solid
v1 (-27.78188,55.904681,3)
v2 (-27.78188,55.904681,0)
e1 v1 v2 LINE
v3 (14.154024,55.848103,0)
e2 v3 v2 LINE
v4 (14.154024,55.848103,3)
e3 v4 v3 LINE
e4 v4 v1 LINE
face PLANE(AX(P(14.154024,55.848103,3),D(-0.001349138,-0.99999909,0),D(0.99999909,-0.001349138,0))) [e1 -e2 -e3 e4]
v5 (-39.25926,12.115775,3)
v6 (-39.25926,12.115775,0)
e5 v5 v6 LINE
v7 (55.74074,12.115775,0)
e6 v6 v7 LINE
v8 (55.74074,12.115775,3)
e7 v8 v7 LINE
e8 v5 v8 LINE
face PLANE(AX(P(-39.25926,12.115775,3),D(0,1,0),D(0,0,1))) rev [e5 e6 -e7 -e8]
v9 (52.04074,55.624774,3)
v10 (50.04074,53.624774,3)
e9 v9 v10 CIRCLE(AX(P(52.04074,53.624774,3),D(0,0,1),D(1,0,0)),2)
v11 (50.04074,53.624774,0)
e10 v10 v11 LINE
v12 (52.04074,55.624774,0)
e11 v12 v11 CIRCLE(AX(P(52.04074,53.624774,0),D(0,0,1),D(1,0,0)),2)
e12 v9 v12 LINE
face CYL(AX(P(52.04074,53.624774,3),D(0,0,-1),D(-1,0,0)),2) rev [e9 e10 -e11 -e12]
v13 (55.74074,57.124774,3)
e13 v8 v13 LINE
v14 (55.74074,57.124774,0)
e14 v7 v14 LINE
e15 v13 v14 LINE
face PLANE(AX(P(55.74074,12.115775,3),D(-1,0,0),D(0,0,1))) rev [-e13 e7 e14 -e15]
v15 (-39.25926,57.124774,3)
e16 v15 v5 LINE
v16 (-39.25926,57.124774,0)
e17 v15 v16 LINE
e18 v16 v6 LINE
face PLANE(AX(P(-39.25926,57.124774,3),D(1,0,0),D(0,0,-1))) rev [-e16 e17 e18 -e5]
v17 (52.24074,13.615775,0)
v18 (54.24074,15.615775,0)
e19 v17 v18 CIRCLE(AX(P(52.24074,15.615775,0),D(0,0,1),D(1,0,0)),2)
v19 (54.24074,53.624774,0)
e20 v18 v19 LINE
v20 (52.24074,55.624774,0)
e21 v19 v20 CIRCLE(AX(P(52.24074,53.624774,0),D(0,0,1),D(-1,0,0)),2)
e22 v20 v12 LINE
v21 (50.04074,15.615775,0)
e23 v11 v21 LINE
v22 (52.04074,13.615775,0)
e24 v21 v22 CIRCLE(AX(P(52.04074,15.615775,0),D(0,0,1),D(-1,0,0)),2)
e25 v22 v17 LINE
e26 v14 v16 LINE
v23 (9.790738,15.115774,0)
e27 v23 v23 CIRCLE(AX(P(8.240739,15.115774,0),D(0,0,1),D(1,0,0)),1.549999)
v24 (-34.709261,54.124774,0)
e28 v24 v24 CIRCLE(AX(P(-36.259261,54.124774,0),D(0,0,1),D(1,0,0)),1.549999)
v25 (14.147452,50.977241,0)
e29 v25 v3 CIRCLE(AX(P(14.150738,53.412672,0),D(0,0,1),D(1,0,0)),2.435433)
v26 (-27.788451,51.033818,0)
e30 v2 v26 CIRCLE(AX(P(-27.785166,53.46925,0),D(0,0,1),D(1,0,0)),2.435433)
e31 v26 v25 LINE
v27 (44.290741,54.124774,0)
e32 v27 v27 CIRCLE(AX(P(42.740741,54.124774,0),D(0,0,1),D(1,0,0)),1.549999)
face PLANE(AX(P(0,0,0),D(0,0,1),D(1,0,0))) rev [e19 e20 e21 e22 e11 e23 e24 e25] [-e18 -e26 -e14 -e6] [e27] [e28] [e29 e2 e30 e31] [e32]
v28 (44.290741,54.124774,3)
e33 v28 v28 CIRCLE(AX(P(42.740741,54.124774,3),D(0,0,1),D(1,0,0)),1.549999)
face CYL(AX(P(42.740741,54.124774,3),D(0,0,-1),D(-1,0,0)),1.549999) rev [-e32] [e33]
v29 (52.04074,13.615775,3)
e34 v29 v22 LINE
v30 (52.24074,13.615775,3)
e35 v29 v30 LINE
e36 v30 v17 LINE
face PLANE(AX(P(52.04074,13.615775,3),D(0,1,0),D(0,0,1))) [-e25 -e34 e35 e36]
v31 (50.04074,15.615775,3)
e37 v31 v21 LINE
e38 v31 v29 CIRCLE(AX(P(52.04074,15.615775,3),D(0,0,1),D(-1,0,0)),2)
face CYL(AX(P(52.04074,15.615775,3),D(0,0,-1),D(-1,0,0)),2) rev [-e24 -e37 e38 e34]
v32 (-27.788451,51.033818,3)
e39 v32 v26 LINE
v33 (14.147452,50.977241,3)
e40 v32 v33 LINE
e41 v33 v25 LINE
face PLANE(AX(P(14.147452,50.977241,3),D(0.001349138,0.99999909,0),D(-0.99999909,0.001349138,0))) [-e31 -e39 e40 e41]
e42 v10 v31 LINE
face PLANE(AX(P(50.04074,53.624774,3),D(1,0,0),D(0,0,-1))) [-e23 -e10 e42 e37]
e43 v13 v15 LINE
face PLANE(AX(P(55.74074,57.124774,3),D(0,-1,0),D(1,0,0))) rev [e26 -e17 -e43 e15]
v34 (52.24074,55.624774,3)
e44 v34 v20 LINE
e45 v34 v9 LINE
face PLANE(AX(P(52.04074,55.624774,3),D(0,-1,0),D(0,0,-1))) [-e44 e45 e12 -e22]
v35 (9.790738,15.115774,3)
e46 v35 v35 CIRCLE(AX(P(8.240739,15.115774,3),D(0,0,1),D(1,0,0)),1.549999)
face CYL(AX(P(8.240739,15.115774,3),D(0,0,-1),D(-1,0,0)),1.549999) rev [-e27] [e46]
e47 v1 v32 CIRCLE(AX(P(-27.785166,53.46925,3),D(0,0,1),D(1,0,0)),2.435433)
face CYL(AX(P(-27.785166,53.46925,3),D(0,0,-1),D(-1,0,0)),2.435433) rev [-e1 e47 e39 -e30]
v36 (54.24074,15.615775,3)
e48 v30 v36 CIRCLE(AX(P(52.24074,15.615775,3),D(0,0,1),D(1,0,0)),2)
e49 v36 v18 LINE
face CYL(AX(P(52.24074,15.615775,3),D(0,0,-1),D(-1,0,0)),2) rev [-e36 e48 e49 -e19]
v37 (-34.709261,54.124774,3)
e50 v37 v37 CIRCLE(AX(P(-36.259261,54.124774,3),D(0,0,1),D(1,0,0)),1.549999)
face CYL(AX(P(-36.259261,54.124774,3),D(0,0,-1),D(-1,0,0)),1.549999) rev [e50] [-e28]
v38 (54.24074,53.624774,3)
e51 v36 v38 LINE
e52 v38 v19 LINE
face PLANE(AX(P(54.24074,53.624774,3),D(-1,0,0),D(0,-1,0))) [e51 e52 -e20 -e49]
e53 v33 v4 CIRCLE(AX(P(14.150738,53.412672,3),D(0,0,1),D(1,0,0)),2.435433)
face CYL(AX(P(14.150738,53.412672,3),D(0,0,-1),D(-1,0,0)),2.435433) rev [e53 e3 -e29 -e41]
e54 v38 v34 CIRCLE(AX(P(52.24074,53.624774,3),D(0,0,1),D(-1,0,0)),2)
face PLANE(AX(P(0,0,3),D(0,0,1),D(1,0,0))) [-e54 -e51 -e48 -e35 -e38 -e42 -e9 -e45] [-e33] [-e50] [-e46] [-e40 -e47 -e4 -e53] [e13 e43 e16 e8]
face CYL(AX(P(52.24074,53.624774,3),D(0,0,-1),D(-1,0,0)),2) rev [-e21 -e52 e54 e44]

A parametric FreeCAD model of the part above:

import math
import FreeCAD as App
import Part
import Sketcher
from FreeCAD import Vector
Q = App.Units.Quantity


def add_polygon(sketch, points):
    """Adds a closed chain of lines whose ends are joined by coincident constraints."""
    first, n = sketch.GeometryCount, len(points)
    for a, b in zip(points, points[1:] + points[:1]):
        sketch.addGeometry(Part.LineSegment(App.Vector(*a, 0), App.Vector(*b, 0)), False)
    for i in range(n):
        sketch.addConstraint(Sketcher.Constraint("Coincident", first + i, 2, first + (i + 1) % n, 1))

doc = App.newDocument("Part")
body = doc.addObject("PartDesign::Body", "Body")

sketch1 = body.newObject("Sketcher::SketchObject", "Sketch")
sketch1.AttachmentSupport = (doc.getObject("XY_Plane"), [""])
sketch1.MapMode = "FlatFace"
add_polygon(sketch1, [(-39.26, 57.12), (-39.26, 12.12), (55.74, 12.12), (55.74, 57.12)])
sketch1.addGeometry(Part.Circle(Vector(8.24, 15.12, 0), Vector(0, 0, 1), 1.55), False)
sketch1.addGeometry(Part.ArcOfCircle(Part.Circle(Vector(52.04, 53.62, 0), Vector(0, 0, 1), 2), math.radians(90), math.radians(180)), False)
sketch1.addGeometry(Part.LineSegment(Vector(52.04, 55.62, 0), Vector(52.24, 55.62, 0)), False)
sketch1.addGeometry(Part.ArcOfCircle(Part.Circle(Vector(52.24, 53.62, 0), Vector(0, 0, 1), 2), math.radians(0), math.radians(90)), False)
sketch1.addGeometry(Part.LineSegment(Vector(54.24, 53.62, 0), Vector(54.24, 15.62, 0)), False)
sketch1.addGeometry(Part.ArcOfCircle(Part.Circle(Vector(52.24, 15.62, 0), Vector(0, 0, 1), 2), math.radians(-90), math.radians(0)), False)
sketch1.addGeometry(Part.LineSegment(Vector(52.24, 13.62, 0), Vector(52.04, 13.62, 0)), False)
sketch1.addGeometry(Part.ArcOfCircle(Part.Circle(Vector(52.04, 15.62, 0), Vector(0, 0, 1), 2), math.radians(180), math.radians(270)), False)
sketch1.addGeometry(Part.LineSegment(Vector(50.04, 15.62, 0), Vector(50.04, 53.62, 0)), False)
sketch1.addGeometry(Part.Circle(Vector(-36.26, 54.12, 0), Vector(0, 0, 1), 1.55), False)
sketch1.addGeometry(Part.ArcOfCircle(Part.Circle(Vector(14.15, 53.41, 0), Vector(0, 0, 1), 2.44), math.radians(-90), math.radians(90)), False)
sketch1.addGeometry(Part.LineSegment(Vector(14.15, 50.98, 0), Vector(-27.79, 51.03, 0)), False)
sketch1.addGeometry(Part.ArcOfCircle(Part.Circle(Vector(-27.79, 53.47, 0), Vector(0, 0, 1), 2.44), math.radians(90), math.radians(270)), False)
sketch1.addGeometry(Part.LineSegment(Vector(-27.78, 55.9, 0), Vector(14.15, 55.85, 0)), False)
sketch1.addGeometry(Part.Circle(Vector(42.74, 54.12, 0), Vector(0, 0, 1), 1.55), False)
sketch1.addConstraint([
    Sketcher.Constraint("Tangent", 5, 1, 6, 1),
    Sketcher.Constraint("Tangent", 6, 2, 7, 2),
    Sketcher.Constraint("Tangent", 7, 1, 8, 1),
    Sketcher.Constraint("Tangent", 8, 2, 9, 2),
    Sketcher.Constraint("Tangent", 9, 1, 10, 1),
    Sketcher.Constraint("Tangent", 10, 2, 11, 2),
    Sketcher.Constraint("Tangent", 11, 1, 12, 1),
    Sketcher.Constraint("Tangent", 12, 2, 5, 2),
    Sketcher.Constraint("Tangent", 14, 1, 15, 1),
    Sketcher.Constraint("Tangent", 15, 2, 16, 2),
    Sketcher.Constraint("Tangent", 16, 1, 17, 1),
    Sketcher.Constraint("Tangent", 17, 2, 14, 2),
    Sketcher.Constraint("Vertical", 0),
    Sketcher.Constraint("Horizontal", 1),
    Sketcher.Constraint("Vertical", 2),
    Sketcher.Constraint("Horizontal", 3),
    Sketcher.Constraint("Horizontal", 6),
    Sketcher.Constraint("Vertical", 8),
    Sketcher.Constraint("Horizontal", 10),
    Sketcher.Constraint("Vertical", 12),
    Sketcher.Constraint("Equal", 5, 7),
    Sketcher.Constraint("Equal", 7, 9),
    Sketcher.Constraint("Equal", 9, 11),
    Sketcher.Constraint("Equal", 4, 13),
    Sketcher.Constraint("Equal", 14, 16),
    Sketcher.Constraint("Equal", 13, 18),
    Sketcher.Constraint("Horizontal", 13, 3, 18, 3),
    Sketcher.Constraint("Radius", 5, Q("2 mm")),
    Sketcher.Constraint("Diameter", 4, Q("3.099999 mm")),
    Sketcher.Constraint("DistanceX", 1, 1, 1, 2, Q("95 mm")),
    Sketcher.Constraint("DistanceX", 6, 1, 6, 2, Q("0.2 mm")),
    Sketcher.Constraint("DistanceX", 4, 3, 7, 3, Q("44.000001 mm")),
    Sketcher.Constraint("DistanceX", 0, 2, 13, 3, Q("2.999999 mm")),
    Sketcher.Constraint("DistanceY", 0, 2, 4, 3, Q("2.999999 mm")),
    Sketcher.Constraint("DistanceX", 18, 3, 1, 2, Q("12.999999 mm")),
    Sketcher.Constraint("DistanceY", 18, 3, 2, 2, Q("3 mm")),
    Sketcher.Constraint("DistanceY", 4, 3, 9, 3, Q("0.500001 mm")),
    Sketcher.Constraint("DistanceX", 13, 3, 4, 3, Q("44.5 mm")),
    Sketcher.Constraint("DistanceY", 5, 3, 13, 3, Q("0.5 mm")),
    Sketcher.Constraint("DistanceY", 0, 2, 0, 1, Q("45.008999 mm")),
    Sketcher.Constraint("DistanceX", 4, 3, 14, 3, Q("5.909999 mm")),
    Sketcher.Constraint("Radius", 14, Q("2.435433 mm")),
    Sketcher.Constraint("DistanceY", 14, 3, 5, 3, Q("0.212102 mm")),
    Sketcher.Constraint("Distance", 15, Q("41.935942 mm")),
    Sketcher.Constraint("DistanceX", -1, 1, 4, 3, Q("8.240739 mm")),
    Sketcher.Constraint("DistanceY", -1, 1, 16, 3, Q("53.46925 mm")),
    Sketcher.Constraint("DistanceY", -1, 1, 14, 1, Q("50.977241 mm")),
])
pad1 = body.newObject("PartDesign::Pad", "Pad")
pad1.Profile = sketch1
pad1.Length = 3

doc.recompute()
